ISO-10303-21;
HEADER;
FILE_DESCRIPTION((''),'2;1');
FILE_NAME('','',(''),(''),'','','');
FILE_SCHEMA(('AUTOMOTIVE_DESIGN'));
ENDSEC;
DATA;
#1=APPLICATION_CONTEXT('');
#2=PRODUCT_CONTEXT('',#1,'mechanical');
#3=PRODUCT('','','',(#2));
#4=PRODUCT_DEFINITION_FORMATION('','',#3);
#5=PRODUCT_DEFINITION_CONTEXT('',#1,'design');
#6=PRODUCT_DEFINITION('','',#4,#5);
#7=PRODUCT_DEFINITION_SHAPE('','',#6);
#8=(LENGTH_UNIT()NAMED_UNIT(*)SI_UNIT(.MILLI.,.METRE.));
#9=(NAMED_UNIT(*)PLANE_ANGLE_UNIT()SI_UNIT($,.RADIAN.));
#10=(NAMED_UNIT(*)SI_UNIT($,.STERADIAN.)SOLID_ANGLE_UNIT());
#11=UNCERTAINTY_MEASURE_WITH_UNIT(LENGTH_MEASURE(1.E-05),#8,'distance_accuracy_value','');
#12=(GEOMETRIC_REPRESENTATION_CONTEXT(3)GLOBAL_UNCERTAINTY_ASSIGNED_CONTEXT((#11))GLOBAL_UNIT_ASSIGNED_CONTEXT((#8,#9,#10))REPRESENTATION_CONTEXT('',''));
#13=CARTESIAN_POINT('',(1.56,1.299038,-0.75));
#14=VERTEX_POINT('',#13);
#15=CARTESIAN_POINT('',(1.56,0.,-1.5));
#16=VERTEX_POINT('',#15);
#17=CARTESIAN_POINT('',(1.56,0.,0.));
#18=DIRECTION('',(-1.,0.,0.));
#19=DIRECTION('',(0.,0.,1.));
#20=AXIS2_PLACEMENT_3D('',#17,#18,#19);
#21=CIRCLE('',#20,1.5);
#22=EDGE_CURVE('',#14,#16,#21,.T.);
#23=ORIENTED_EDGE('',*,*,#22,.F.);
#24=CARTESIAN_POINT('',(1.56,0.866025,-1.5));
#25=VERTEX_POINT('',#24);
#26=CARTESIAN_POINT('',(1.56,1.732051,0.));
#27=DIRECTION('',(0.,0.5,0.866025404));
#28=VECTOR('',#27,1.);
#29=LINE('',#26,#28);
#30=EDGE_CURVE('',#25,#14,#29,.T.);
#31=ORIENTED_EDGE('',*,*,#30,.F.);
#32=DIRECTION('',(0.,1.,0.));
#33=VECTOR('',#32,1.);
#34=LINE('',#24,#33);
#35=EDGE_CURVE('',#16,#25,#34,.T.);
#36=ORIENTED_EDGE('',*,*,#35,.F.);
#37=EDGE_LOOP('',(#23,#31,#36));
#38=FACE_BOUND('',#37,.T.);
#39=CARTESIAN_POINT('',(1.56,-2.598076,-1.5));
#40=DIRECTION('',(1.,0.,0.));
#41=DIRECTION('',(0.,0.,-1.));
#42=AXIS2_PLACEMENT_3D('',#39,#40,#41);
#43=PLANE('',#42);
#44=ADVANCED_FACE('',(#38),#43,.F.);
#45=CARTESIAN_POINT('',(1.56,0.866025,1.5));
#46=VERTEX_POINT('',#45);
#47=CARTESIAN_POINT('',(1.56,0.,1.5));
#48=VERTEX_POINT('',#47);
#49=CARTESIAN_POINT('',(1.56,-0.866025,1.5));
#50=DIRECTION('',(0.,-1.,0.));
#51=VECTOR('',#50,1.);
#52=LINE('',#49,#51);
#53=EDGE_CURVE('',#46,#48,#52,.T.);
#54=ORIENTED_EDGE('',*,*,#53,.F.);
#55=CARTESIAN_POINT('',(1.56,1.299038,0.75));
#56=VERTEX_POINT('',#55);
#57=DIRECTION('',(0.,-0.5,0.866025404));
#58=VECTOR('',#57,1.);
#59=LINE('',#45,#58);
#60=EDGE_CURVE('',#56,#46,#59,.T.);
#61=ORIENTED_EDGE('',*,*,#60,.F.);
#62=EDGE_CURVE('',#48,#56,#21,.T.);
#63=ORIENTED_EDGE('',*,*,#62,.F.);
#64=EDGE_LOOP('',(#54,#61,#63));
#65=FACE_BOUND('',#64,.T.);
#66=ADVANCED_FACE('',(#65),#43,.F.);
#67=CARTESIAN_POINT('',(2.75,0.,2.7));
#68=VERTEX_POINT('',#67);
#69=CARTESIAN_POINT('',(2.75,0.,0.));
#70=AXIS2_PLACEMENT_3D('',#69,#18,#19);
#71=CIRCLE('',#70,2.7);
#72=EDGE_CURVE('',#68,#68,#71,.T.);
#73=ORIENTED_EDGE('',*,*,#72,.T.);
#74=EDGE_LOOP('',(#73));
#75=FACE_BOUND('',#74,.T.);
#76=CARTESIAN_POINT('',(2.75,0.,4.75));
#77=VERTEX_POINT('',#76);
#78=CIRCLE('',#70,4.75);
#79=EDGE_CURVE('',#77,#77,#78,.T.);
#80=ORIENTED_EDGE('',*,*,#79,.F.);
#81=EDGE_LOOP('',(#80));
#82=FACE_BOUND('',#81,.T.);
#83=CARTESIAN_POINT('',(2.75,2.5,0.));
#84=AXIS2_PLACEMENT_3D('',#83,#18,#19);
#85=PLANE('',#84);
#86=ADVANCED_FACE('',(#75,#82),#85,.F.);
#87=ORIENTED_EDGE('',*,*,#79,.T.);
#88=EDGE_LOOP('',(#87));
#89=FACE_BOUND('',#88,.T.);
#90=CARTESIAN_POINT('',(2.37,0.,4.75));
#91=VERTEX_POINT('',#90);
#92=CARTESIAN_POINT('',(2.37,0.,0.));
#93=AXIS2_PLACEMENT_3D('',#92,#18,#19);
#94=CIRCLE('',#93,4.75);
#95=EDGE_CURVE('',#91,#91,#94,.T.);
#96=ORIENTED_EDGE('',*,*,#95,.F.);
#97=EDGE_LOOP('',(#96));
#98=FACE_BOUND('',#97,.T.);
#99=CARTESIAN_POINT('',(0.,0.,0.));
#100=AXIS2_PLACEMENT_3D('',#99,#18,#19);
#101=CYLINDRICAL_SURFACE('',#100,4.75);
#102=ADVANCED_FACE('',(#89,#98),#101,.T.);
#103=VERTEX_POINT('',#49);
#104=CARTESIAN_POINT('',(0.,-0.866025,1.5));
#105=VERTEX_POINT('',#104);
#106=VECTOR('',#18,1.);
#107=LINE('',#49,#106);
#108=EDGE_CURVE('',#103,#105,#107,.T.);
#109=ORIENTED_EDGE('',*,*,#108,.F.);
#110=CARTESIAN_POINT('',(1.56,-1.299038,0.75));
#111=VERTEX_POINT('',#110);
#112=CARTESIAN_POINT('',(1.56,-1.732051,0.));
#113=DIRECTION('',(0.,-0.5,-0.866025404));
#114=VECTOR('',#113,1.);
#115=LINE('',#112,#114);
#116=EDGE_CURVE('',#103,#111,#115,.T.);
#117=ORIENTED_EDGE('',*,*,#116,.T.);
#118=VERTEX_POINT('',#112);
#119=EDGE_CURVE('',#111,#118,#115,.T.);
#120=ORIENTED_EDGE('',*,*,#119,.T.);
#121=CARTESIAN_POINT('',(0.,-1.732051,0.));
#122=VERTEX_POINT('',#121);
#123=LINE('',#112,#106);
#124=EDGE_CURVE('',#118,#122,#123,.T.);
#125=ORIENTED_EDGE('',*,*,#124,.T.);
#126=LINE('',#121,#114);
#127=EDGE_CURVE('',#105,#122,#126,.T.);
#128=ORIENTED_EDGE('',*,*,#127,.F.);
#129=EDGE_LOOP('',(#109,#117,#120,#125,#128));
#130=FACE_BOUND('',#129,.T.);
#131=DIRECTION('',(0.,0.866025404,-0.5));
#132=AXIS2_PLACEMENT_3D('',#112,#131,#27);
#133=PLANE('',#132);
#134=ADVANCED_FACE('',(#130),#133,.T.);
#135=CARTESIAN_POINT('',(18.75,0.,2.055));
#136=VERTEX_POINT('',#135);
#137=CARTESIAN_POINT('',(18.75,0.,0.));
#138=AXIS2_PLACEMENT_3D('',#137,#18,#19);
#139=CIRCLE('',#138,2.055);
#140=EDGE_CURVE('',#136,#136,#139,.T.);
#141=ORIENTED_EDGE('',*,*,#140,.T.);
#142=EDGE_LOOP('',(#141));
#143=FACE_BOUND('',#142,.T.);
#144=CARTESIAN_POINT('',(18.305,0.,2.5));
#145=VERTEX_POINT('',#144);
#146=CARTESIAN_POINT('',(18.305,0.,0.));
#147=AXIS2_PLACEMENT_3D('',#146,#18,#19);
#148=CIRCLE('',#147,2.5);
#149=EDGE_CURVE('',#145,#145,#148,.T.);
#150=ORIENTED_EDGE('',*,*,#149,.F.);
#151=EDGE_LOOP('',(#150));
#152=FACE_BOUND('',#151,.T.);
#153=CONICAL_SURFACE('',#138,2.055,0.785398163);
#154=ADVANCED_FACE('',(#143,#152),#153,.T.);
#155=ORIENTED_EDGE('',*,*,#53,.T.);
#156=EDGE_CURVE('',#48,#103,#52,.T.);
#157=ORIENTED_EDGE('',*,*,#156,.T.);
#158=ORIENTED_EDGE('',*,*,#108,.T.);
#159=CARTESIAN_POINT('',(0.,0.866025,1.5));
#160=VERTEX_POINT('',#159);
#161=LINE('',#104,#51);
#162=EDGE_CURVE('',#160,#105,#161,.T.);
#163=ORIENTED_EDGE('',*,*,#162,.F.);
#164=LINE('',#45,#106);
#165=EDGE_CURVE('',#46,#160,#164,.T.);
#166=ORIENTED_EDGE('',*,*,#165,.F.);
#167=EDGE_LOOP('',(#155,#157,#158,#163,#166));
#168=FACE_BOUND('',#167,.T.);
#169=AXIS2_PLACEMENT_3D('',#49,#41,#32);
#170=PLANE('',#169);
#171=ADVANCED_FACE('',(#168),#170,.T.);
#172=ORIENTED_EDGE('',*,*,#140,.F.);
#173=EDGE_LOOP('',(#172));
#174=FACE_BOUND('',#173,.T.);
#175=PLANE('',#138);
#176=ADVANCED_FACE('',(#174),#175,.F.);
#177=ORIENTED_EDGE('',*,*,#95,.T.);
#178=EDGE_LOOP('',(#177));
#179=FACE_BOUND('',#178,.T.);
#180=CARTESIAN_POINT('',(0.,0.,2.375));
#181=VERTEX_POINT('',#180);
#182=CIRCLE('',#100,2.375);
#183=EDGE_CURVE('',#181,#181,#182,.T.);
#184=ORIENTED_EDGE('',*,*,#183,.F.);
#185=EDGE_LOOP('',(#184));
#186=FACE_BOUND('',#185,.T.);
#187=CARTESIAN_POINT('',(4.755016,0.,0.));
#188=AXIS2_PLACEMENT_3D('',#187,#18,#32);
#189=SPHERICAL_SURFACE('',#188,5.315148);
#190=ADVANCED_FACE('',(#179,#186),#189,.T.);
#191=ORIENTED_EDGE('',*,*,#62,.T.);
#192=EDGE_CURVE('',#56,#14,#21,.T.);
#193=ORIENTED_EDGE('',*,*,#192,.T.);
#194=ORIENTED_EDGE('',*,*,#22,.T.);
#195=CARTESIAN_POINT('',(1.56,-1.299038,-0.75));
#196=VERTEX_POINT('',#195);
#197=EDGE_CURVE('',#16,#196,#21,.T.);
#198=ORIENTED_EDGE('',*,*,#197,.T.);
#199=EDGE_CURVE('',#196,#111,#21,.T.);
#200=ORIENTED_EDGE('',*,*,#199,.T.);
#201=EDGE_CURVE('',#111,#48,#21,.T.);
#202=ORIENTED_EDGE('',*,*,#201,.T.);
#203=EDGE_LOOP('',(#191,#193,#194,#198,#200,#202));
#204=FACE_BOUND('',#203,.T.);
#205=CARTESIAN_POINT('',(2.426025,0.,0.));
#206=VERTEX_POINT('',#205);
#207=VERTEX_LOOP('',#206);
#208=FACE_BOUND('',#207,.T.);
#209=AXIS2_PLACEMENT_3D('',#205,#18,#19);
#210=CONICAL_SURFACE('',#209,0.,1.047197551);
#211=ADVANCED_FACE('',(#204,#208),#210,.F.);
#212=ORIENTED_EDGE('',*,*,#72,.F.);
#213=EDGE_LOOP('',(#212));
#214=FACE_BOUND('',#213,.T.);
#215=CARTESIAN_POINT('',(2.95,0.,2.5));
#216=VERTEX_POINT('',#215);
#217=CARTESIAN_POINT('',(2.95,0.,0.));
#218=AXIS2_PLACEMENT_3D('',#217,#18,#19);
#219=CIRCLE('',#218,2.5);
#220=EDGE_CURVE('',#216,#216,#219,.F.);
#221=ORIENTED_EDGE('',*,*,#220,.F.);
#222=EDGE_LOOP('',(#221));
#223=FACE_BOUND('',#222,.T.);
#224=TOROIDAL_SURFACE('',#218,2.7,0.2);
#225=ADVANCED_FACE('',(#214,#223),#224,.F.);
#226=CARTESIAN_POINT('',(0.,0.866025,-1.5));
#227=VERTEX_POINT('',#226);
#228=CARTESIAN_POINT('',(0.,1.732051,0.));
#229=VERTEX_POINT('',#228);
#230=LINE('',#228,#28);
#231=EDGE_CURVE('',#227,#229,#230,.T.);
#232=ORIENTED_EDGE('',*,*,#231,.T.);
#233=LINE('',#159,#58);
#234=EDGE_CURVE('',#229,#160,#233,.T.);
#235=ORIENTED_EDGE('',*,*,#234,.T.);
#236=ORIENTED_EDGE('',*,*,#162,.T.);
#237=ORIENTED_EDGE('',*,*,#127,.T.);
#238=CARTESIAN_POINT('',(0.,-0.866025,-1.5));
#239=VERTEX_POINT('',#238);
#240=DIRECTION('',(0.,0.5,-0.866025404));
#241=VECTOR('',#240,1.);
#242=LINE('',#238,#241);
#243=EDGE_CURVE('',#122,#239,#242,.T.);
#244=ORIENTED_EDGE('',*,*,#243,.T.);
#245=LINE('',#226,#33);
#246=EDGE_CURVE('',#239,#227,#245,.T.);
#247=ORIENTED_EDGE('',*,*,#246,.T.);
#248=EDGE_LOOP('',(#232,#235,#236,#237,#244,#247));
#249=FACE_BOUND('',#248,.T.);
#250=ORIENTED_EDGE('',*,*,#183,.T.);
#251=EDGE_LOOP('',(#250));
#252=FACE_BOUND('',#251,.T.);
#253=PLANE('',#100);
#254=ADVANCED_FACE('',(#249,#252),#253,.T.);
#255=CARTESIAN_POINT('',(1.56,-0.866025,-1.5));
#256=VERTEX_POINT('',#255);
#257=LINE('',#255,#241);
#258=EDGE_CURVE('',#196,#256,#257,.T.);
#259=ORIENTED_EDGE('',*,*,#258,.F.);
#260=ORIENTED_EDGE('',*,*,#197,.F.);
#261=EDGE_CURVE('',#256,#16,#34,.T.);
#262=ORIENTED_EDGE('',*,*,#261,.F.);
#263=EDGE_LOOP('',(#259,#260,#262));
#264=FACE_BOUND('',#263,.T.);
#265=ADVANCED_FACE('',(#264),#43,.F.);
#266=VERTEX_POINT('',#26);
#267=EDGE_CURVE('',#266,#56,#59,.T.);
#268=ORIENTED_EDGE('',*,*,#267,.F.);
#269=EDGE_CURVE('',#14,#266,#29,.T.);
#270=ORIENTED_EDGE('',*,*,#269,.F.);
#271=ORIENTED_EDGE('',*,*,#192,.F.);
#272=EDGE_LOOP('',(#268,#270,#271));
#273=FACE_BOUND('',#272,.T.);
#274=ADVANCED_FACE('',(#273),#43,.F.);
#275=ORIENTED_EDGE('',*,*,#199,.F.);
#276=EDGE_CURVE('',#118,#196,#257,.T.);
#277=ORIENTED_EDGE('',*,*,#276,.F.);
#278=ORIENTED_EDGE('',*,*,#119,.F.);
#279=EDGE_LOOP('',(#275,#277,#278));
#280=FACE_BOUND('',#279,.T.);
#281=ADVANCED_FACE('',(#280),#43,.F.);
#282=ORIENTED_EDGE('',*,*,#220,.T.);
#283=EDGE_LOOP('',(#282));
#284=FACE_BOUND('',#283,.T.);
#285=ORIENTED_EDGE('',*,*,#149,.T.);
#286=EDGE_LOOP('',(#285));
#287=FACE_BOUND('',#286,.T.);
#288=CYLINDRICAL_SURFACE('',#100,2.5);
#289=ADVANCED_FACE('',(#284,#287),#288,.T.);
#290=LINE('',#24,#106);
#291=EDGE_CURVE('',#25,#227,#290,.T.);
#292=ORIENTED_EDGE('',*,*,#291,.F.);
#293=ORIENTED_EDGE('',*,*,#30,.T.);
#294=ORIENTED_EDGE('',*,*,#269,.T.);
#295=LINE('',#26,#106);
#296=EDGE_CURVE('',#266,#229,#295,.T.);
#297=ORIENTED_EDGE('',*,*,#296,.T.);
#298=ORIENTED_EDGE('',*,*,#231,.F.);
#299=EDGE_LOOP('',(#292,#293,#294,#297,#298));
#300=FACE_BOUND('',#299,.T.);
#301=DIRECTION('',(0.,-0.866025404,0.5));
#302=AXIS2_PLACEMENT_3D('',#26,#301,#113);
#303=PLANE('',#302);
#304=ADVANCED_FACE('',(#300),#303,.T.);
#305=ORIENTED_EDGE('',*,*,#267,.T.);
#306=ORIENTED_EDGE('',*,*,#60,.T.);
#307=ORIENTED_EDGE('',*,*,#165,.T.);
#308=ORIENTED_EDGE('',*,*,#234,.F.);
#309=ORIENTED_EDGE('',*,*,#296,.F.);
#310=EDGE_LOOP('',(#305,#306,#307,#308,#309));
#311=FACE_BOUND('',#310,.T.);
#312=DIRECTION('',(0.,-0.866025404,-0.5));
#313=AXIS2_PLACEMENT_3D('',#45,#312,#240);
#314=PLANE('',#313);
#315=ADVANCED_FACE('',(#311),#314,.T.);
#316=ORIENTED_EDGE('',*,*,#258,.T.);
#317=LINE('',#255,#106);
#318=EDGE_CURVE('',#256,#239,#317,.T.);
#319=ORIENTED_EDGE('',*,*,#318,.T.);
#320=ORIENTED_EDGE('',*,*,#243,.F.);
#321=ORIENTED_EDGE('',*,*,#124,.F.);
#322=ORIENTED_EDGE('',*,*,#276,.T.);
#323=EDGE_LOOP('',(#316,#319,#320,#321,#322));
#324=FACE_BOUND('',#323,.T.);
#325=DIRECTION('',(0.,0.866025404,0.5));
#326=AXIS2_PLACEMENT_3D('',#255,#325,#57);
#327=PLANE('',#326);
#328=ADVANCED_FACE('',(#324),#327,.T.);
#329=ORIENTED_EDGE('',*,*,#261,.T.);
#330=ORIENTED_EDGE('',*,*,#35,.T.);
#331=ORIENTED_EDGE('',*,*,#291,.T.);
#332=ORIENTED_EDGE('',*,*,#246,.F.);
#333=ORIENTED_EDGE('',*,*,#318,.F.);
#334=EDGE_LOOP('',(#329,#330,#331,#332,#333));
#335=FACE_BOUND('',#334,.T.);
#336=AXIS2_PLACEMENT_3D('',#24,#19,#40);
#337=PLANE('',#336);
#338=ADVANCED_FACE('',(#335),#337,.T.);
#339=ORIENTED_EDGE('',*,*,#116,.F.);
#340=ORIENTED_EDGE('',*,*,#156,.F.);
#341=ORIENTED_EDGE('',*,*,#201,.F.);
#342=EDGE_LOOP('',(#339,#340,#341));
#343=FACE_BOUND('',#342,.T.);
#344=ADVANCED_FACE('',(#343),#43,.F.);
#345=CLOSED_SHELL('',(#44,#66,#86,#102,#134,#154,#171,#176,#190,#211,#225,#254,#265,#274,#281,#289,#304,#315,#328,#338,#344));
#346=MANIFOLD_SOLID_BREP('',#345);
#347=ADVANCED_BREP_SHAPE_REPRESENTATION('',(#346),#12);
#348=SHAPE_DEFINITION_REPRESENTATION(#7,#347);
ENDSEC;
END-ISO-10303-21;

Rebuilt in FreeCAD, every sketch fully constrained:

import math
import FreeCAD as App
import Part
import Sketcher
Q = App.Units.Quantity


def edges_at(feature, points):
    """Names of the edges that pass closest to the given points."""
    edges = feature.Shape.Edges
    near = lambda p: min(range(len(edges)), key=lambda i: edges[i].distToShape(Part.Vertex(*p))[0])
    return sorted({f"Edge{near(p) + 1}" for p in points})

doc = App.newDocument("Part")
body = doc.addObject("PartDesign::Body", "Body")

sketch1 = body.newObject("Sketcher::SketchObject", "Sketch")
sketch1.AttachmentSupport = (doc.getObject("XY_Plane"), [""])
sketch1.MapMode = "FlatFace"
sketch1.addGeometry([
    Part.LineSegment(App.Vector(18.75, 0, 0), App.Vector(18.75, 2.06, 0)),
    Part.LineSegment(App.Vector(18.75, 2.06, 0), App.Vector(18.3, 2.5, 0)),
    Part.LineSegment(App.Vector(18.3, 2.5, 0), App.Vector(2.75, 2.5, 0)),
    Part.LineSegment(App.Vector(2.75, 2.5, 0), App.Vector(2.75, 4.75, 0)),
    Part.LineSegment(App.Vector(2.75, 4.75, 0), App.Vector(2.37, 4.75, 0)),
    Part.ArcOfCircle(Part.Circle(App.Vector(4.76, 0, 0), App.Vector(0, 0, 1), 5.32), math.radians(117), math.radians(153)),
    Part.LineSegment(App.Vector(0, 2.38, 0), App.Vector(0, 0, 0)),
    Part.LineSegment(App.Vector(0, 0, 0), App.Vector(18.75, 0, 0)),
], False)
sketch1.addConstraint([
    Sketcher.Constraint("Coincident", 0, 2, 1, 1),
    Sketcher.Constraint("Coincident", 1, 2, 2, 1),
    Sketcher.Constraint("Coincident", 2, 2, 3, 1),
    Sketcher.Constraint("Coincident", 3, 2, 4, 1),
    Sketcher.Constraint("Coincident", 4, 2, 5, 1),
    Sketcher.Constraint("Coincident", 5, 2, 6, 1),
    Sketcher.Constraint("Coincident", 6, 2, 7, 1),
    Sketcher.Constraint("Coincident", 7, 2, 0, 1),
    Sketcher.Constraint("Vertical", 0),
    Sketcher.Constraint("Horizontal", 2),
    Sketcher.Constraint("Vertical", 3),
    Sketcher.Constraint("Horizontal", 4),
    Sketcher.Constraint("Vertical", 6),
    Sketcher.Constraint("Horizontal", 7),
    Sketcher.Constraint("Coincident", 6, 2, -1, 1),
    Sketcher.Constraint("PointOnObject", 5, 3, -1),
    Sketcher.Constraint("Angle", 1, Q("135 deg")),
    Sketcher.Constraint("DistanceX", 2, 2, 0, 2, 16.0),
    Sketcher.Constraint("DistanceX", 4, 2, 4, 1, 0.38),
    Sketcher.Constraint("DistanceX", 7, 1, 7, 2, 18.75),
    Sketcher.Constraint("DistanceY", 3, 1, 3, 2, 2.25),
    Sketcher.Constraint("DistanceY", -1, 1, 1, 2, 2.5),
    Sketcher.Constraint("DistanceX", 2, 2, 2, 1, 15.555),
    Sketcher.Constraint("DistanceY", 6, 2, 6, 1, 2.375),
])
revolution = body.newObject("PartDesign::Revolution", "Revolution")
revolution.Profile = sketch1
revolution.ReferenceAxis = (sketch1, ["H_Axis"])
revolution.Angle = 360
doc.recompute()

fillet = body.newObject("PartDesign::Fillet", "Fillet")
fillet.Base = (revolution, edges_at(revolution, [(2.75, -2.5, 0)]))
fillet.Radius = 0.2

sketch2 = body.newObject("Sketcher::SketchObject", "Sketch001")
sketch2.AttachmentSupport = (doc.getObject("XY_Plane"), [""])
sketch2.MapMode = "FlatFace"
sketch2.addGeometry([
    Part.LineSegment(App.Vector(1.6, 1.5, 0), App.Vector(0, 1.5, 0)),
    Part.LineSegment(App.Vector(0, 1.5, 0), App.Vector(0, 0, 0)),
    Part.LineSegment(App.Vector(0, 0, 0), App.Vector(2.4, 0, 0)),
    Part.LineSegment(App.Vector(2.4, 0, 0), App.Vector(1.6, 1.5, 0)),
], False)
sketch2.addConstraint([
    Sketcher.Constraint("Coincident", 0, 2, 1, 1),
    Sketcher.Constraint("Coincident", 1, 2, 2, 1),
    Sketcher.Constraint("Coincident", 2, 2, 3, 1),
    Sketcher.Constraint("Coincident", 3, 2, 0, 1),
    Sketcher.Constraint("Horizontal", 0),
    Sketcher.Constraint("Vertical", 1),
    Sketcher.Constraint("Horizontal", 2),
    Sketcher.Constraint("Coincident", 1, 2, -1, 1),
    Sketcher.Constraint("Angle", 3, Q("120 deg")),
    Sketcher.Constraint("DistanceY", 1, 2, 1, 1, 1.5),
    Sketcher.Constraint("DistanceX", 0, 2, 0, 1, 1.56),
])
groove = body.newObject("PartDesign::Groove", "Groove")
groove.Profile = sketch2
groove.ReferenceAxis = (sketch2, ["H_Axis"])
groove.Angle = 360

sketch3 = body.newObject("Sketcher::SketchObject", "Sketch002")
sketch3.AttachmentSupport = (doc.getObject("YZ_Plane"), [""])
sketch3.MapMode = "FlatFace"
sketch3.addGeometry([
    Part.LineSegment(App.Vector(0.9, 1.5, 0), App.Vector(-0.9, 1.5, 0)),
    Part.LineSegment(App.Vector(-0.9, 1.5, 0), App.Vector(-1.7, 0, 0)),
    Part.LineSegment(App.Vector(-1.7, 0, 0), App.Vector(-0.9, -1.5, 0)),
    Part.LineSegment(App.Vector(-0.9, -1.5, 0), App.Vector(0.9, -1.5, 0)),
    Part.LineSegment(App.Vector(0.9, -1.5, 0), App.Vector(1.7, 0, 0)),
    Part.LineSegment(App.Vector(1.7, 0, 0), App.Vector(0.9, 1.5, 0)),
], False)
sketch3.addConstraint([
    Sketcher.Constraint("Coincident", 0, 2, 1, 1),
    Sketcher.Constraint("Coincident", 1, 2, 2, 1),
    Sketcher.Constraint("Coincident", 2, 2, 3, 1),
    Sketcher.Constraint("Coincident", 3, 2, 4, 1),
    Sketcher.Constraint("Coincident", 4, 2, 5, 1),
    Sketcher.Constraint("Coincident", 5, 2, 0, 1),
    Sketcher.Constraint("Horizontal", 0),
    Sketcher.Constraint("Horizontal", 3),
    Sketcher.Constraint("Symmetric", 0, 2, 3, 2, -1, 1),
    Sketcher.Constraint("Symmetric", 1, 2, 4, 2, -1, 1),
    Sketcher.Constraint("PointOnObject", 1, 2, -1),
    Sketcher.Constraint("Parallel", 2, 5),
    Sketcher.Constraint("Vertical", 0, 2, 2, 2),
    Sketcher.Constraint("Angle", 1, Q("-120 deg")),
    Sketcher.Constraint("DistanceY", 2, 2, 0, 2, 3.0),
    Sketcher.Constraint("DistanceX", 0, 2, 0, 1, 1.732051),
])
pocket1 = body.newObject("PartDesign::Pocket", "Pocket")
pocket1.Profile = sketch3
pocket1.Length = 1.56
pocket1.Reversed = True

doc.recompute()
